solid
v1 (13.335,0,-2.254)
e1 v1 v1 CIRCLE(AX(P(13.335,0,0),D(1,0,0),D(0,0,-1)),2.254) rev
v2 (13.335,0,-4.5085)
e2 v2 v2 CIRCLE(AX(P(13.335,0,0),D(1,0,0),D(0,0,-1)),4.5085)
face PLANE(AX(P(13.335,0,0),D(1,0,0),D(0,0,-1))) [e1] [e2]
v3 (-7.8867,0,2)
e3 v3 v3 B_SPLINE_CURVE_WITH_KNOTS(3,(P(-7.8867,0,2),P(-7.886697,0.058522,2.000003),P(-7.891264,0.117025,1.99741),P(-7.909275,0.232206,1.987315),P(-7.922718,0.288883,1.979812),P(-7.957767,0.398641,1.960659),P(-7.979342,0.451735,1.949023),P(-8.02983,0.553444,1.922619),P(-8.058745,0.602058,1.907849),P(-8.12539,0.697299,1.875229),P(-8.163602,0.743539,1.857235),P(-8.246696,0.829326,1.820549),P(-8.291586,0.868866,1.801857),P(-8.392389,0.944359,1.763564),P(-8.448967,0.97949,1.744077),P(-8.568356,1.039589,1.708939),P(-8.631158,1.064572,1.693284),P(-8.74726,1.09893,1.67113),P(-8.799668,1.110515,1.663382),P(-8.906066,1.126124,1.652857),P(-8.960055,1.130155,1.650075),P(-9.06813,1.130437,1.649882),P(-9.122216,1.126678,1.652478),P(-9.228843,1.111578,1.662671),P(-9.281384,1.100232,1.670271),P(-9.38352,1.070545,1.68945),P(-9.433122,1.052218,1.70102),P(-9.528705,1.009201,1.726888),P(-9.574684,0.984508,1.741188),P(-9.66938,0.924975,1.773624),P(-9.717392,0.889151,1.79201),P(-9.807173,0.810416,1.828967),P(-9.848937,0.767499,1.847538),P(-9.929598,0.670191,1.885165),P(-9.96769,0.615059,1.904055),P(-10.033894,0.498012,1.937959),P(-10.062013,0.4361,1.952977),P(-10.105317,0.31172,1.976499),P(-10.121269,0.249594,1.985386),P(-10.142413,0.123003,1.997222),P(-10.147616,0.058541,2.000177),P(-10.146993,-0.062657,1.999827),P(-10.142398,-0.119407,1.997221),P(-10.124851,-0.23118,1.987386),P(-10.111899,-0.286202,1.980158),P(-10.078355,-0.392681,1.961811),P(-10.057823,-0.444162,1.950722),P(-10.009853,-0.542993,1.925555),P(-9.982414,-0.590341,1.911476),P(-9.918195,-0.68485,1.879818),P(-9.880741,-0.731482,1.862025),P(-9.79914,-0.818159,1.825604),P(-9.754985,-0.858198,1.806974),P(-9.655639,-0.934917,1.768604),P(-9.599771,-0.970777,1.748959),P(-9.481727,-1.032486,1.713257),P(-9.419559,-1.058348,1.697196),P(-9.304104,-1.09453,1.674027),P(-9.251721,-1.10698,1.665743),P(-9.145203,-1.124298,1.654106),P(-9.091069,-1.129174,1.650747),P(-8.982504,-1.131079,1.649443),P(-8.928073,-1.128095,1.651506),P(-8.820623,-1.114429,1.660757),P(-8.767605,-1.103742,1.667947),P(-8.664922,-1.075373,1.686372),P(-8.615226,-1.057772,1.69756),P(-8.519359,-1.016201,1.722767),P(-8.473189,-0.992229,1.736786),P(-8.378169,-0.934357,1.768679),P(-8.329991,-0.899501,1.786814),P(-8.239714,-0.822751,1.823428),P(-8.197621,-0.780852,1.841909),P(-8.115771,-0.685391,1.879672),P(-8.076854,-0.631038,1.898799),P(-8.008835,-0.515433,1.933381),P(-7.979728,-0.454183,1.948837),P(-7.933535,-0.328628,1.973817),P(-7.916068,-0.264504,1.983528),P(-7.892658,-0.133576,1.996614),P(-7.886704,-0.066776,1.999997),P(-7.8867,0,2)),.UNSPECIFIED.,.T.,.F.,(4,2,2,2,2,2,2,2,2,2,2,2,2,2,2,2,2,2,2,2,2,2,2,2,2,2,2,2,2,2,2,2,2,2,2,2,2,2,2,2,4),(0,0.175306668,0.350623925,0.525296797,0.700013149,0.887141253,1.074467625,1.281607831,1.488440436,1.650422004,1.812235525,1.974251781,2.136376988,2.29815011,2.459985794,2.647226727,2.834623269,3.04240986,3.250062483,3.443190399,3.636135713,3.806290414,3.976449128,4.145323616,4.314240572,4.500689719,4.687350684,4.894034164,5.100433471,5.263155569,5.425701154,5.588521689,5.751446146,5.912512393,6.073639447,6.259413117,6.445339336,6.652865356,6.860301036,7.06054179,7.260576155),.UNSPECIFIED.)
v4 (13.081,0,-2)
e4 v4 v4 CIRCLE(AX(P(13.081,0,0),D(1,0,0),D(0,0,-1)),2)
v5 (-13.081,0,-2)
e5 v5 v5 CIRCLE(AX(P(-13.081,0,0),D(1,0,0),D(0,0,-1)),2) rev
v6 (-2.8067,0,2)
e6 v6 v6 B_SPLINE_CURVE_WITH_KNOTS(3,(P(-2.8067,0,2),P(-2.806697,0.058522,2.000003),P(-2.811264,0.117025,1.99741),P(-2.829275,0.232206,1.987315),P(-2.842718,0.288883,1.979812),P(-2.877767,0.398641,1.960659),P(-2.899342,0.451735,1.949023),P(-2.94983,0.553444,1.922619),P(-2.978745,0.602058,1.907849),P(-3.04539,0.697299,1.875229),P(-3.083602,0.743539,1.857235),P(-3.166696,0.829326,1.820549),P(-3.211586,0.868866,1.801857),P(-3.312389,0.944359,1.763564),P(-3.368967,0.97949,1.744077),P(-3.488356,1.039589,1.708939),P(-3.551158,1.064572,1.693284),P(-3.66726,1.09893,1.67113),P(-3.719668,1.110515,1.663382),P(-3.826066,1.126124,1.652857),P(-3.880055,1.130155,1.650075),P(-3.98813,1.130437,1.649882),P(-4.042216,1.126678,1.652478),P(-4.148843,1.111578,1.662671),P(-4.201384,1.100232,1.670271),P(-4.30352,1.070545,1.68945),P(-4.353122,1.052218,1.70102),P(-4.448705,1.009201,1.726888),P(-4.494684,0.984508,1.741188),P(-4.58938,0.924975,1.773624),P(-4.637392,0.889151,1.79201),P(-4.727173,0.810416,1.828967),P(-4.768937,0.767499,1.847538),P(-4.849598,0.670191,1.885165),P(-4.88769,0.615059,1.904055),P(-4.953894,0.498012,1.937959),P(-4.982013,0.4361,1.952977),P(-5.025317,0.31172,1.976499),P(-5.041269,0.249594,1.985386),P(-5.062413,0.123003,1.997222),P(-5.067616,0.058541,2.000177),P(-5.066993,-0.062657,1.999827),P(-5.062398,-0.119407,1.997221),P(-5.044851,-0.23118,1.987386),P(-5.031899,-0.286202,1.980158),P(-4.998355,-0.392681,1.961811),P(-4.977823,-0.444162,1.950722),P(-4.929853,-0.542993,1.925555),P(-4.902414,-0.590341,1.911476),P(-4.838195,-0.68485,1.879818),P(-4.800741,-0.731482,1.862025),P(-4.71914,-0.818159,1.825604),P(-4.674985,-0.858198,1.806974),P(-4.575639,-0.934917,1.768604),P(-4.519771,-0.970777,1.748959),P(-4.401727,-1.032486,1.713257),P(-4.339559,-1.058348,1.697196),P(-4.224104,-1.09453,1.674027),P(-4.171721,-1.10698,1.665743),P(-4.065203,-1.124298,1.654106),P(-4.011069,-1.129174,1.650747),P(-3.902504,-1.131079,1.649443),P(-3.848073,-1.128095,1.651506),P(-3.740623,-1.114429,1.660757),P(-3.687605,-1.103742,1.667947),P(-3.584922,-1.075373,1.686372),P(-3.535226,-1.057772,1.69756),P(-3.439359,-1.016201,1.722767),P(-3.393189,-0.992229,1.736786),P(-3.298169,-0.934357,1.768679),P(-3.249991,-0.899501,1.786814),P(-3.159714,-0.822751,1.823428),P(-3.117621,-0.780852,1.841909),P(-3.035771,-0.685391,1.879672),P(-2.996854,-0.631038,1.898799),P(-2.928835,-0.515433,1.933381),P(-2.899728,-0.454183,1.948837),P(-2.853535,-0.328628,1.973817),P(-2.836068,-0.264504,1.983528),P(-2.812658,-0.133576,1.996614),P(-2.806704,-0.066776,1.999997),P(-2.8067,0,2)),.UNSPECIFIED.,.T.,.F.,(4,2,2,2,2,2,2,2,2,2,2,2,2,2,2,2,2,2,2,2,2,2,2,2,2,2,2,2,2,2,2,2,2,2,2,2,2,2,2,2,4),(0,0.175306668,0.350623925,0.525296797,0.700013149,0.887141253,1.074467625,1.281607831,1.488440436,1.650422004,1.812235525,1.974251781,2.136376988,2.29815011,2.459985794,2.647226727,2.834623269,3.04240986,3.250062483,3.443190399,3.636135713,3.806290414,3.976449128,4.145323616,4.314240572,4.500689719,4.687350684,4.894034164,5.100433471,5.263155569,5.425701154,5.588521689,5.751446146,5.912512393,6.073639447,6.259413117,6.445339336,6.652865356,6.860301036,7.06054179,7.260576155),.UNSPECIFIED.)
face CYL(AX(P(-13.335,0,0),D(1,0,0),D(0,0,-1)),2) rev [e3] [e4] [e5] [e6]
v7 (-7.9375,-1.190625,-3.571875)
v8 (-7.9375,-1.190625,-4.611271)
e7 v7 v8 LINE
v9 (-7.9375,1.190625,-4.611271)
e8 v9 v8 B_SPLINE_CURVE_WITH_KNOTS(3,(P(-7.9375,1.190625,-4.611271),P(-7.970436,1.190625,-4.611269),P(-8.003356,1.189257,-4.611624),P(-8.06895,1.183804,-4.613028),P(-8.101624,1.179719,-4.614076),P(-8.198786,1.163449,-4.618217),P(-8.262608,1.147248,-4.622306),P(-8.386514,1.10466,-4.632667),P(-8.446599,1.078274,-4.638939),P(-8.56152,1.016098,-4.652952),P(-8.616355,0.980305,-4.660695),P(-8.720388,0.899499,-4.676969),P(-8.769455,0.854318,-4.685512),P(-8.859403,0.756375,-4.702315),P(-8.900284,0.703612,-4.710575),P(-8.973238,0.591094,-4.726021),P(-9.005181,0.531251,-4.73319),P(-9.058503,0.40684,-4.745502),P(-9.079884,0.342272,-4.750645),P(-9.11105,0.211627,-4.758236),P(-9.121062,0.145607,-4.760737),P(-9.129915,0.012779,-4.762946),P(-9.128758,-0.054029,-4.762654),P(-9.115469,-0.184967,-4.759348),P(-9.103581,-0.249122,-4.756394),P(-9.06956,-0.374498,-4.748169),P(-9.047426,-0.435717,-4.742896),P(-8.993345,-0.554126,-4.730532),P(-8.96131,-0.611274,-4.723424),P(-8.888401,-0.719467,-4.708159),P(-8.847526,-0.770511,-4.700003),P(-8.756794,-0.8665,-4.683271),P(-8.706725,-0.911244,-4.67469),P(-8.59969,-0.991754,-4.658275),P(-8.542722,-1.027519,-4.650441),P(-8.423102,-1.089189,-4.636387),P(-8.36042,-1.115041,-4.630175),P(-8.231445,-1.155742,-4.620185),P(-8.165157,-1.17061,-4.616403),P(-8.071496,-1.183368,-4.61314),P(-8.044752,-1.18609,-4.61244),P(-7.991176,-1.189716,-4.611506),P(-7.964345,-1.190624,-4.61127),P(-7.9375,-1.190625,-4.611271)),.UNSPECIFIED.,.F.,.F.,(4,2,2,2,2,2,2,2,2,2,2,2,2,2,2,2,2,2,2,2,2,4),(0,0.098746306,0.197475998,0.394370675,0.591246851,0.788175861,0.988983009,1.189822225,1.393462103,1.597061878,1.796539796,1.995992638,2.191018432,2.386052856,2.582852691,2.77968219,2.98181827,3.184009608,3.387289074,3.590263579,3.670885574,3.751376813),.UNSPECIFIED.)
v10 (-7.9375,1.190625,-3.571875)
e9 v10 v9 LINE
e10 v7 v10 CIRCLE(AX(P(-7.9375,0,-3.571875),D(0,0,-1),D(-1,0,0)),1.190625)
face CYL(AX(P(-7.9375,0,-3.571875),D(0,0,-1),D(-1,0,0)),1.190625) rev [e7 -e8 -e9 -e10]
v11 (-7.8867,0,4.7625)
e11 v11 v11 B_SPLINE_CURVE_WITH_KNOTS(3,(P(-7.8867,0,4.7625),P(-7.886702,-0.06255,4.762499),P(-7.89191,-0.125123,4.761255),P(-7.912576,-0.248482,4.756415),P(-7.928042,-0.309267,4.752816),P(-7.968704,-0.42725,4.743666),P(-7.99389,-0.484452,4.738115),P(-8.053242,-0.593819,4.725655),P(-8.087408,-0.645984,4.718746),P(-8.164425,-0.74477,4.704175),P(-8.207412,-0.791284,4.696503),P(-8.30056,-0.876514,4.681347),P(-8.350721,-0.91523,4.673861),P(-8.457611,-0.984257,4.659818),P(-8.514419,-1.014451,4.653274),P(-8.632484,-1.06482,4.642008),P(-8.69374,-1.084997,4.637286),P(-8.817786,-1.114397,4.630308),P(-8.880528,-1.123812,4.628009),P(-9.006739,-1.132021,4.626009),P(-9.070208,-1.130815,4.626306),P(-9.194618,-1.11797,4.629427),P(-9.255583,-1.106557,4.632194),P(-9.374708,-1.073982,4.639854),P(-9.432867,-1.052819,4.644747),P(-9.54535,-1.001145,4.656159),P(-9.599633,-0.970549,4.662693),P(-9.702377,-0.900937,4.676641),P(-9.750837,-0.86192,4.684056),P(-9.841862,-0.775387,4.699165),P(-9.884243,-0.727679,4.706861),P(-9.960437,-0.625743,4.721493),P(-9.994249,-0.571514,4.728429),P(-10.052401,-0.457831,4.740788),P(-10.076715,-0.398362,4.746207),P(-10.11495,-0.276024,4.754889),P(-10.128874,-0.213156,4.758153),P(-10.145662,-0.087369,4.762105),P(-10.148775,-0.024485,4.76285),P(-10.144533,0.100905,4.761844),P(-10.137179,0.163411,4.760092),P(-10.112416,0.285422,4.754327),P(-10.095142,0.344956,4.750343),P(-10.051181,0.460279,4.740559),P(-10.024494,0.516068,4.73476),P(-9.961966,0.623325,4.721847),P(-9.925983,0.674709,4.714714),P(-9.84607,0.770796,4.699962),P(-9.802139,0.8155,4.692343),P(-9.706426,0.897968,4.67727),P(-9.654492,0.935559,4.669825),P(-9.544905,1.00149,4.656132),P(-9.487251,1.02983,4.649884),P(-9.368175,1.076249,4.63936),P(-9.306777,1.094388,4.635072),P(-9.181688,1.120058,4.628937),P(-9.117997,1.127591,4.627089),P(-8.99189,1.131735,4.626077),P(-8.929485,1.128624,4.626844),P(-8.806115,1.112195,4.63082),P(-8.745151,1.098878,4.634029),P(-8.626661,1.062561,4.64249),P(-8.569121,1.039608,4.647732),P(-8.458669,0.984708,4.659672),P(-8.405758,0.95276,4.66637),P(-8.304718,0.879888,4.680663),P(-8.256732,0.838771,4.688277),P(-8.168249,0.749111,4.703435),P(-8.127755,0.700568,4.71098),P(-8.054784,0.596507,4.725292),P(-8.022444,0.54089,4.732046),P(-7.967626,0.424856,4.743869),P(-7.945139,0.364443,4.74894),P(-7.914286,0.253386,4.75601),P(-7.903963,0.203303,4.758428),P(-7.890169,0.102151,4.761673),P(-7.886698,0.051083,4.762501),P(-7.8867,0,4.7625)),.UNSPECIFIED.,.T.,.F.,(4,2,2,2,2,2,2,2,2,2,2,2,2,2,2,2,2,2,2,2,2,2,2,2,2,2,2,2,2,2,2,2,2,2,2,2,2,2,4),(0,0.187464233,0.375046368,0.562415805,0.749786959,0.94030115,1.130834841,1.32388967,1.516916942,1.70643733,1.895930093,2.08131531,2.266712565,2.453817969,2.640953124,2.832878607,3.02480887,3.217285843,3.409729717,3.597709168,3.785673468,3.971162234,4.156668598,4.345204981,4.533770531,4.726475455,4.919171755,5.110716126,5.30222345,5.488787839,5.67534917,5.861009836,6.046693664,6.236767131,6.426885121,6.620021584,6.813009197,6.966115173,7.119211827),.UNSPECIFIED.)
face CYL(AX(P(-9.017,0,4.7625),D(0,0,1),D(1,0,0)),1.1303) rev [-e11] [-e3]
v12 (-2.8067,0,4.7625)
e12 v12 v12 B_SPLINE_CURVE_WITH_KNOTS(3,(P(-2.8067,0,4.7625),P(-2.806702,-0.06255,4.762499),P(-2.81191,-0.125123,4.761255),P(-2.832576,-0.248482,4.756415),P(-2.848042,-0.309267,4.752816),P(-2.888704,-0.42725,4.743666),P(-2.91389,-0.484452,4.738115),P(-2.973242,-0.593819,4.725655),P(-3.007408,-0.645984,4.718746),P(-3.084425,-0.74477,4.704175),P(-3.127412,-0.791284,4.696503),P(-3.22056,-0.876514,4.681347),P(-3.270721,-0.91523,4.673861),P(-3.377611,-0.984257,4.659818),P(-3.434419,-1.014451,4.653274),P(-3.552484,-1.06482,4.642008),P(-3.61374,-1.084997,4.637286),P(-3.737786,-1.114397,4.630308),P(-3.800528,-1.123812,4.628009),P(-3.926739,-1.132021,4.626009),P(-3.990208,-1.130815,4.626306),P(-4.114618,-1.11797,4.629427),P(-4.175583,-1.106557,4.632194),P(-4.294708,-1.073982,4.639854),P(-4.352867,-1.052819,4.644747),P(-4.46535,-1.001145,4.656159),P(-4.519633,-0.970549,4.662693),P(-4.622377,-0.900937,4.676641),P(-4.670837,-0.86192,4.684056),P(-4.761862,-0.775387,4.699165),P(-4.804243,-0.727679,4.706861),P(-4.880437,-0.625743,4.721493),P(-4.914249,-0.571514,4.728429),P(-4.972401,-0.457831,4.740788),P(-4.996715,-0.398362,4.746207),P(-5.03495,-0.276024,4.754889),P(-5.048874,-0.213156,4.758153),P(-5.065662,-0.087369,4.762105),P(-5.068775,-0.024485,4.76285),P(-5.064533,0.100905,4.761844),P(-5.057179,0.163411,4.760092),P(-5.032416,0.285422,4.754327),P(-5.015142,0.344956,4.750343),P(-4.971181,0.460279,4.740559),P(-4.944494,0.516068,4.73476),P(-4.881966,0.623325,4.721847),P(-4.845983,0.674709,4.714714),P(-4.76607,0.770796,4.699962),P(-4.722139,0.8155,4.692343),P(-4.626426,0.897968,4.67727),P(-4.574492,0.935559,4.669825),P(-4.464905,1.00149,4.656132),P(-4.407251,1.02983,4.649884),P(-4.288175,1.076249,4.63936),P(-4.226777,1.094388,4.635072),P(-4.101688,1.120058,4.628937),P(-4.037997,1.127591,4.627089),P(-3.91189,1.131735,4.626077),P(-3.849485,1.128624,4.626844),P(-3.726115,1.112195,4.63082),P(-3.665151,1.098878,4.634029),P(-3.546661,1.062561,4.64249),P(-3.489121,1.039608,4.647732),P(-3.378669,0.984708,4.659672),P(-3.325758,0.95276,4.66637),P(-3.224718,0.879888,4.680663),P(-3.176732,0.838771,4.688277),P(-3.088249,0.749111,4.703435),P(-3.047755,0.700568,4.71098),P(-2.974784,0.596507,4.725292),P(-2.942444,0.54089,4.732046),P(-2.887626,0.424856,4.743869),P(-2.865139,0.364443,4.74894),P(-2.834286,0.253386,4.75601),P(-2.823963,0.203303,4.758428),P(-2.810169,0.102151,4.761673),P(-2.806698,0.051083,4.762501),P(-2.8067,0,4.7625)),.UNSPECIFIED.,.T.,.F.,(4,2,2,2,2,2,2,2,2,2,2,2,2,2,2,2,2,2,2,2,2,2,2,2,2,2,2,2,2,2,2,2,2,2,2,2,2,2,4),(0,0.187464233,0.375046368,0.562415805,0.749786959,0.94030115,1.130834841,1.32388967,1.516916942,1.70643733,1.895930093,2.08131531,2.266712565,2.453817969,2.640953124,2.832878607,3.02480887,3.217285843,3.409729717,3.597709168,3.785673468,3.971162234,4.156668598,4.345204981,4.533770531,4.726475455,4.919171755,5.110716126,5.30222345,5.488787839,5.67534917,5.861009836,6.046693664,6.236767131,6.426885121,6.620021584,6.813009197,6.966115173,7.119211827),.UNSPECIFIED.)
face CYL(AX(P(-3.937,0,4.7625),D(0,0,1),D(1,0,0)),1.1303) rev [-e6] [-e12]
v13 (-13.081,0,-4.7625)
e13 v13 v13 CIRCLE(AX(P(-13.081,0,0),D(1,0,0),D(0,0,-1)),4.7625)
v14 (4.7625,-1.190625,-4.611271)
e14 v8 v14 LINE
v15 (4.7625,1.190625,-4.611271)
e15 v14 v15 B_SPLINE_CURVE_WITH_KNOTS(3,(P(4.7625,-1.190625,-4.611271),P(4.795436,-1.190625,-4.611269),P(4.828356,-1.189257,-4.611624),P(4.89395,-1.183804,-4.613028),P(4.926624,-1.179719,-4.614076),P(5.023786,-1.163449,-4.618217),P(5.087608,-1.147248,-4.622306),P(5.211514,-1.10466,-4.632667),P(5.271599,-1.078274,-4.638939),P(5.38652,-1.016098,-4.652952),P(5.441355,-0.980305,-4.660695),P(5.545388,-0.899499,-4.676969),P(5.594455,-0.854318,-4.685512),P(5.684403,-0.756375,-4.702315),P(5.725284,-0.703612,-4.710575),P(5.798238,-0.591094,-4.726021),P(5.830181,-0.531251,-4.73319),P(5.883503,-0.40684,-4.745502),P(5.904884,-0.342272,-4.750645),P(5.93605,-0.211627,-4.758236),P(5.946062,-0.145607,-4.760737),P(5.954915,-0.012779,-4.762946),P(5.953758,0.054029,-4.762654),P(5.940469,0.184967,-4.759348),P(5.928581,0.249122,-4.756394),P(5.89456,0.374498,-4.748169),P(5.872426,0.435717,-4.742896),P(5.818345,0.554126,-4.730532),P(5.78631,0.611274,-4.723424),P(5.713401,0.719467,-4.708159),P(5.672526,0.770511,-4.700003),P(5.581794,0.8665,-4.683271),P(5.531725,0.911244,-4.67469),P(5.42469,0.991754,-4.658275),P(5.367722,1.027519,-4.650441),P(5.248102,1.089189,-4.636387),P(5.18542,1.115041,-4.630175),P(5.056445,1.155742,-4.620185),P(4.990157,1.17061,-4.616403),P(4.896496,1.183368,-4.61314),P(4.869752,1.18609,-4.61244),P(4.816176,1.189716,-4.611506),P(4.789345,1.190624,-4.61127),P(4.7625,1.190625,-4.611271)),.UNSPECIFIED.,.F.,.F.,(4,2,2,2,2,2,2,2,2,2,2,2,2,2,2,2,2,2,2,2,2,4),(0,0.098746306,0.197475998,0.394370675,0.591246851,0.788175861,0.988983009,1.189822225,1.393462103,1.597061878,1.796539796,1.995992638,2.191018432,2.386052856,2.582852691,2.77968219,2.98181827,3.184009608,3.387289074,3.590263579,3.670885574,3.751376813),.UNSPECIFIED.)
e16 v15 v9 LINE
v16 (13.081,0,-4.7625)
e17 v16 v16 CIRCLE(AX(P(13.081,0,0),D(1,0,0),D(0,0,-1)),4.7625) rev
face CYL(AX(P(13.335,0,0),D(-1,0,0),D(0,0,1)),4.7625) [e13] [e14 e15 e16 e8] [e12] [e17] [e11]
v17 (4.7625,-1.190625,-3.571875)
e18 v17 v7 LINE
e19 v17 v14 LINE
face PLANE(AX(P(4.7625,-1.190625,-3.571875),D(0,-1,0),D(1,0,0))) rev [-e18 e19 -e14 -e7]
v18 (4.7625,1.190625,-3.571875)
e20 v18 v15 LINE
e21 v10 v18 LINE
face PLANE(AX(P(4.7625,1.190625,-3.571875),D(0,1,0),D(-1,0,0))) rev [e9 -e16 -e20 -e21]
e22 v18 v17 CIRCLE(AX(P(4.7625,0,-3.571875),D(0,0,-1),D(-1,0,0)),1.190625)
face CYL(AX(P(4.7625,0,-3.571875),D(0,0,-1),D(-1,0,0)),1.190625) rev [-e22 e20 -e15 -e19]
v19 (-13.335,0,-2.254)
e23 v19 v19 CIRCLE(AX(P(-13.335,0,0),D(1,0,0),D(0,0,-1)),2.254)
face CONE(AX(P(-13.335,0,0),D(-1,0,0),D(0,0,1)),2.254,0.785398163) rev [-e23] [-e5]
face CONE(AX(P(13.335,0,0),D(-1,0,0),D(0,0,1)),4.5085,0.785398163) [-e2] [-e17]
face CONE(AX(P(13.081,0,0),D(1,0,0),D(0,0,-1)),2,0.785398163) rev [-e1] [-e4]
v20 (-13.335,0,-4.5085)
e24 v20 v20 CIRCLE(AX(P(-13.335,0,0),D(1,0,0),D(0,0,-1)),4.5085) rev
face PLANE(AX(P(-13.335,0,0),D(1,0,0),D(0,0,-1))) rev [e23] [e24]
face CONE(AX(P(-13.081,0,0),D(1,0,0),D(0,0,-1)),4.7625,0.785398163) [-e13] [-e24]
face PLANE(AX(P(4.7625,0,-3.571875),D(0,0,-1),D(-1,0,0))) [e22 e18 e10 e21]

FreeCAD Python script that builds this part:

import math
import FreeCAD as App
import Part
import Sketcher
from FreeCAD import Vector
Q = App.Units.Quantity


def edges_at(feature, points):
    """Names of the edges that pass closest to the given points."""
    edges = feature.Shape.Edges
    near = lambda p: min(range(len(edges)), key=lambda i: edges[i].distToShape(Part.Vertex(*p))[0])
    return sorted({f"Edge{near(p) + 1}" for p in points})

doc = App.newDocument("Part")
body = doc.addObject("PartDesign::Body", "Body")

# Sketch on YZ plane
sketch1 = doc.addObject("Sketcher::SketchObject", "Sketch")
body.addObject(sketch1)
sketch1.AttachmentSupport = (doc.YZ_Plane, [""])
sketch1.MapMode = "FlatFace"
sketch1.addGeometry(Part.Circle(Vector(0, 0, 0), Vector(0, 0, 1), 4.8), False)
sketch1.addConstraint(Sketcher.Constraint("Coincident", 0, 3, -1, 1))
sketch1.addConstraint(Sketcher.Constraint("Diameter", 0, Q("0.375 in")))
pad1 = doc.addObject("PartDesign::Pad", "Pad")
body.addObject(pad1)
pad1.Profile = sketch1
pad1.Length = Q("1.05 in")
pad1.Midplane = True

# Sketch on YZ plane
sketch2 = doc.addObject("Sketcher::SketchObject", "Sketch001")
body.addObject(sketch2)
sketch2.AttachmentSupport = (doc.YZ_Plane, [""])
sketch2.MapMode = "FlatFace"
sketch2.AttachmentOffset = App.Placement(Vector(0, 0, 0.525 * 25.4), App.Rotation())
sketch2.addGeometry(Part.Circle(Vector(0, 0, 0), Vector(0, 0, 1), 2), False)
sketch2.addConstraint(Sketcher.Constraint("Coincident", 0, 3, -1, 1))
sketch2.addConstraint(Sketcher.Constraint("Diameter", 0, 4.0))
pocket1 = doc.addObject("PartDesign::Pocket", "Pocket")
body.addObject(pocket1)
pocket1.Profile = sketch2
pocket1.Type = "ThroughAll"

# Sketch on XY plane
sketch3 = doc.addObject("Sketcher::SketchObject", "Sketch002")
body.addObject(sketch3)
sketch3.AttachmentSupport = (doc.XY_Plane, [""])
sketch3.MapMode = "FlatFace"
sketch3.AttachmentOffset = App.Placement(Vector(0, 0, 0.1875 * 25.4), App.Rotation())
sketch3.addGeometry(Part.Circle(Vector(-9, 0, 0), Vector(0, 0, 1), 1.1), False)
sketch3.addConstraint(Sketcher.Constraint("PointOnObject", 0, 3, -1))
sketch3.addConstraint(Sketcher.Constraint("Diameter", 0, Q("0.089 in")))
sketch3.addConstraint(Sketcher.Constraint("DistanceX", 0, 3, -1, 1, Q("0.355 in")))
pocket2 = doc.addObject("PartDesign::Pocket", "Pocket001")
body.addObject(pocket2)
pocket2.Profile = sketch3
pocket2.Type = "UpToFirst"

# Sketch on XY plane
sketch4 = doc.addObject("Sketcher::SketchObject", "Sketch003")
body.addObject(sketch4)
sketch4.AttachmentSupport = (doc.XY_Plane, [""])
sketch4.MapMode = "FlatFace"
sketch4.AttachmentOffset = App.Placement(Vector(0, 0, 0.1875 * 25.4), App.Rotation())
sketch4.addGeometry(Part.Circle(Vector(-3.9, 0, 0), Vector(0, 0, 1), 1.1), False)
sketch4.addConstraint(Sketcher.Constraint("PointOnObject", 0, 3, -1))
sketch4.addConstraint(Sketcher.Constraint("Diameter", 0, Q("0.089 in")))
sketch4.addConstraint(Sketcher.Constraint("DistanceX", 0, 3, -1, 1, Q("0.155 in")))
pocket3 = doc.addObject("PartDesign::Pocket", "Pocket002")
body.addObject(pocket3)
pocket3.Profile = sketch4
pocket3.Type = "UpToFirst"

# Sketch on XY plane
sketch5 = doc.addObject("Sketcher::SketchObject", "Sketch004")
body.addObject(sketch5)
sketch5.AttachmentSupport = (doc.XY_Plane, [""])
sketch5.MapMode = "FlatFace"
sketch5.AttachmentOffset = App.Placement(Vector(0, 0, -0.1875 * 25.4), App.Rotation())
sketch5.addGeometry(Part.LineSegment(Vector(-7.9, 1.2, 0), Vector(4.8, 1.2, 0)), False)
sketch5.addGeometry(Part.ArcOfCircle(Part.Circle(Vector(4.8, 0, 0), Vector(0, 0, 1), 1.2), math.radians(-90), math.radians(90)), False)
sketch5.addGeometry(Part.LineSegment(Vector(4.8, -1.2, 0), Vector(-7.9, -1.2, 0)), False)
sketch5.addGeometry(Part.ArcOfCircle(Part.Circle(Vector(-7.9, 0, 0), Vector(0, 0, 1), 1.2), math.radians(90), math.radians(270)), False)
sketch5.addConstraint(Sketcher.Constraint("Tangent", 0, 2, 1, 2))
sketch5.addConstraint(Sketcher.Constraint("Tangent", 1, 1, 2, 1))
sketch5.addConstraint(Sketcher.Constraint("Tangent", 2, 2, 3, 2))
sketch5.addConstraint(Sketcher.Constraint("Tangent", 3, 1, 0, 1))
sketch5.addConstraint(Sketcher.Constraint("Horizontal", 0))
sketch5.addConstraint(Sketcher.Constraint("Horizontal", 2))
sketch5.addConstraint(Sketcher.Constraint("PointOnObject", 1, 3, -1))
sketch5.addConstraint(Sketcher.Constraint("DistanceX", 0, 1, 0, 2, Q("0.5 in")))
sketch5.addConstraint(Sketcher.Constraint("Radius", 1, Q("0.046875 in")))
sketch5.addConstraint(Sketcher.Constraint("DistanceX", -1, 1, 1, 3, Q("0.1875 in")))
pocket4 = doc.addObject("PartDesign::Pocket", "Pocket003")
body.addObject(pocket4)
pocket4.Profile = sketch5
pocket4.Length = Q("0.046875 in")
pocket4.Reversed = True
doc.recompute()

chamfer = doc.addObject("PartDesign::Chamfer", "Chamfer")
body.addObject(chamfer)
chamfer.Base = (pocket4, edges_at(pocket4, [
    (-13.335, 0, 4.763),
    (13.335, 0, 4.763),
    (-13.335, 0, 2),
    (13.335, 0, 2),
]))
chamfer.Size = Q("0.01 in")

doc.recompute()
